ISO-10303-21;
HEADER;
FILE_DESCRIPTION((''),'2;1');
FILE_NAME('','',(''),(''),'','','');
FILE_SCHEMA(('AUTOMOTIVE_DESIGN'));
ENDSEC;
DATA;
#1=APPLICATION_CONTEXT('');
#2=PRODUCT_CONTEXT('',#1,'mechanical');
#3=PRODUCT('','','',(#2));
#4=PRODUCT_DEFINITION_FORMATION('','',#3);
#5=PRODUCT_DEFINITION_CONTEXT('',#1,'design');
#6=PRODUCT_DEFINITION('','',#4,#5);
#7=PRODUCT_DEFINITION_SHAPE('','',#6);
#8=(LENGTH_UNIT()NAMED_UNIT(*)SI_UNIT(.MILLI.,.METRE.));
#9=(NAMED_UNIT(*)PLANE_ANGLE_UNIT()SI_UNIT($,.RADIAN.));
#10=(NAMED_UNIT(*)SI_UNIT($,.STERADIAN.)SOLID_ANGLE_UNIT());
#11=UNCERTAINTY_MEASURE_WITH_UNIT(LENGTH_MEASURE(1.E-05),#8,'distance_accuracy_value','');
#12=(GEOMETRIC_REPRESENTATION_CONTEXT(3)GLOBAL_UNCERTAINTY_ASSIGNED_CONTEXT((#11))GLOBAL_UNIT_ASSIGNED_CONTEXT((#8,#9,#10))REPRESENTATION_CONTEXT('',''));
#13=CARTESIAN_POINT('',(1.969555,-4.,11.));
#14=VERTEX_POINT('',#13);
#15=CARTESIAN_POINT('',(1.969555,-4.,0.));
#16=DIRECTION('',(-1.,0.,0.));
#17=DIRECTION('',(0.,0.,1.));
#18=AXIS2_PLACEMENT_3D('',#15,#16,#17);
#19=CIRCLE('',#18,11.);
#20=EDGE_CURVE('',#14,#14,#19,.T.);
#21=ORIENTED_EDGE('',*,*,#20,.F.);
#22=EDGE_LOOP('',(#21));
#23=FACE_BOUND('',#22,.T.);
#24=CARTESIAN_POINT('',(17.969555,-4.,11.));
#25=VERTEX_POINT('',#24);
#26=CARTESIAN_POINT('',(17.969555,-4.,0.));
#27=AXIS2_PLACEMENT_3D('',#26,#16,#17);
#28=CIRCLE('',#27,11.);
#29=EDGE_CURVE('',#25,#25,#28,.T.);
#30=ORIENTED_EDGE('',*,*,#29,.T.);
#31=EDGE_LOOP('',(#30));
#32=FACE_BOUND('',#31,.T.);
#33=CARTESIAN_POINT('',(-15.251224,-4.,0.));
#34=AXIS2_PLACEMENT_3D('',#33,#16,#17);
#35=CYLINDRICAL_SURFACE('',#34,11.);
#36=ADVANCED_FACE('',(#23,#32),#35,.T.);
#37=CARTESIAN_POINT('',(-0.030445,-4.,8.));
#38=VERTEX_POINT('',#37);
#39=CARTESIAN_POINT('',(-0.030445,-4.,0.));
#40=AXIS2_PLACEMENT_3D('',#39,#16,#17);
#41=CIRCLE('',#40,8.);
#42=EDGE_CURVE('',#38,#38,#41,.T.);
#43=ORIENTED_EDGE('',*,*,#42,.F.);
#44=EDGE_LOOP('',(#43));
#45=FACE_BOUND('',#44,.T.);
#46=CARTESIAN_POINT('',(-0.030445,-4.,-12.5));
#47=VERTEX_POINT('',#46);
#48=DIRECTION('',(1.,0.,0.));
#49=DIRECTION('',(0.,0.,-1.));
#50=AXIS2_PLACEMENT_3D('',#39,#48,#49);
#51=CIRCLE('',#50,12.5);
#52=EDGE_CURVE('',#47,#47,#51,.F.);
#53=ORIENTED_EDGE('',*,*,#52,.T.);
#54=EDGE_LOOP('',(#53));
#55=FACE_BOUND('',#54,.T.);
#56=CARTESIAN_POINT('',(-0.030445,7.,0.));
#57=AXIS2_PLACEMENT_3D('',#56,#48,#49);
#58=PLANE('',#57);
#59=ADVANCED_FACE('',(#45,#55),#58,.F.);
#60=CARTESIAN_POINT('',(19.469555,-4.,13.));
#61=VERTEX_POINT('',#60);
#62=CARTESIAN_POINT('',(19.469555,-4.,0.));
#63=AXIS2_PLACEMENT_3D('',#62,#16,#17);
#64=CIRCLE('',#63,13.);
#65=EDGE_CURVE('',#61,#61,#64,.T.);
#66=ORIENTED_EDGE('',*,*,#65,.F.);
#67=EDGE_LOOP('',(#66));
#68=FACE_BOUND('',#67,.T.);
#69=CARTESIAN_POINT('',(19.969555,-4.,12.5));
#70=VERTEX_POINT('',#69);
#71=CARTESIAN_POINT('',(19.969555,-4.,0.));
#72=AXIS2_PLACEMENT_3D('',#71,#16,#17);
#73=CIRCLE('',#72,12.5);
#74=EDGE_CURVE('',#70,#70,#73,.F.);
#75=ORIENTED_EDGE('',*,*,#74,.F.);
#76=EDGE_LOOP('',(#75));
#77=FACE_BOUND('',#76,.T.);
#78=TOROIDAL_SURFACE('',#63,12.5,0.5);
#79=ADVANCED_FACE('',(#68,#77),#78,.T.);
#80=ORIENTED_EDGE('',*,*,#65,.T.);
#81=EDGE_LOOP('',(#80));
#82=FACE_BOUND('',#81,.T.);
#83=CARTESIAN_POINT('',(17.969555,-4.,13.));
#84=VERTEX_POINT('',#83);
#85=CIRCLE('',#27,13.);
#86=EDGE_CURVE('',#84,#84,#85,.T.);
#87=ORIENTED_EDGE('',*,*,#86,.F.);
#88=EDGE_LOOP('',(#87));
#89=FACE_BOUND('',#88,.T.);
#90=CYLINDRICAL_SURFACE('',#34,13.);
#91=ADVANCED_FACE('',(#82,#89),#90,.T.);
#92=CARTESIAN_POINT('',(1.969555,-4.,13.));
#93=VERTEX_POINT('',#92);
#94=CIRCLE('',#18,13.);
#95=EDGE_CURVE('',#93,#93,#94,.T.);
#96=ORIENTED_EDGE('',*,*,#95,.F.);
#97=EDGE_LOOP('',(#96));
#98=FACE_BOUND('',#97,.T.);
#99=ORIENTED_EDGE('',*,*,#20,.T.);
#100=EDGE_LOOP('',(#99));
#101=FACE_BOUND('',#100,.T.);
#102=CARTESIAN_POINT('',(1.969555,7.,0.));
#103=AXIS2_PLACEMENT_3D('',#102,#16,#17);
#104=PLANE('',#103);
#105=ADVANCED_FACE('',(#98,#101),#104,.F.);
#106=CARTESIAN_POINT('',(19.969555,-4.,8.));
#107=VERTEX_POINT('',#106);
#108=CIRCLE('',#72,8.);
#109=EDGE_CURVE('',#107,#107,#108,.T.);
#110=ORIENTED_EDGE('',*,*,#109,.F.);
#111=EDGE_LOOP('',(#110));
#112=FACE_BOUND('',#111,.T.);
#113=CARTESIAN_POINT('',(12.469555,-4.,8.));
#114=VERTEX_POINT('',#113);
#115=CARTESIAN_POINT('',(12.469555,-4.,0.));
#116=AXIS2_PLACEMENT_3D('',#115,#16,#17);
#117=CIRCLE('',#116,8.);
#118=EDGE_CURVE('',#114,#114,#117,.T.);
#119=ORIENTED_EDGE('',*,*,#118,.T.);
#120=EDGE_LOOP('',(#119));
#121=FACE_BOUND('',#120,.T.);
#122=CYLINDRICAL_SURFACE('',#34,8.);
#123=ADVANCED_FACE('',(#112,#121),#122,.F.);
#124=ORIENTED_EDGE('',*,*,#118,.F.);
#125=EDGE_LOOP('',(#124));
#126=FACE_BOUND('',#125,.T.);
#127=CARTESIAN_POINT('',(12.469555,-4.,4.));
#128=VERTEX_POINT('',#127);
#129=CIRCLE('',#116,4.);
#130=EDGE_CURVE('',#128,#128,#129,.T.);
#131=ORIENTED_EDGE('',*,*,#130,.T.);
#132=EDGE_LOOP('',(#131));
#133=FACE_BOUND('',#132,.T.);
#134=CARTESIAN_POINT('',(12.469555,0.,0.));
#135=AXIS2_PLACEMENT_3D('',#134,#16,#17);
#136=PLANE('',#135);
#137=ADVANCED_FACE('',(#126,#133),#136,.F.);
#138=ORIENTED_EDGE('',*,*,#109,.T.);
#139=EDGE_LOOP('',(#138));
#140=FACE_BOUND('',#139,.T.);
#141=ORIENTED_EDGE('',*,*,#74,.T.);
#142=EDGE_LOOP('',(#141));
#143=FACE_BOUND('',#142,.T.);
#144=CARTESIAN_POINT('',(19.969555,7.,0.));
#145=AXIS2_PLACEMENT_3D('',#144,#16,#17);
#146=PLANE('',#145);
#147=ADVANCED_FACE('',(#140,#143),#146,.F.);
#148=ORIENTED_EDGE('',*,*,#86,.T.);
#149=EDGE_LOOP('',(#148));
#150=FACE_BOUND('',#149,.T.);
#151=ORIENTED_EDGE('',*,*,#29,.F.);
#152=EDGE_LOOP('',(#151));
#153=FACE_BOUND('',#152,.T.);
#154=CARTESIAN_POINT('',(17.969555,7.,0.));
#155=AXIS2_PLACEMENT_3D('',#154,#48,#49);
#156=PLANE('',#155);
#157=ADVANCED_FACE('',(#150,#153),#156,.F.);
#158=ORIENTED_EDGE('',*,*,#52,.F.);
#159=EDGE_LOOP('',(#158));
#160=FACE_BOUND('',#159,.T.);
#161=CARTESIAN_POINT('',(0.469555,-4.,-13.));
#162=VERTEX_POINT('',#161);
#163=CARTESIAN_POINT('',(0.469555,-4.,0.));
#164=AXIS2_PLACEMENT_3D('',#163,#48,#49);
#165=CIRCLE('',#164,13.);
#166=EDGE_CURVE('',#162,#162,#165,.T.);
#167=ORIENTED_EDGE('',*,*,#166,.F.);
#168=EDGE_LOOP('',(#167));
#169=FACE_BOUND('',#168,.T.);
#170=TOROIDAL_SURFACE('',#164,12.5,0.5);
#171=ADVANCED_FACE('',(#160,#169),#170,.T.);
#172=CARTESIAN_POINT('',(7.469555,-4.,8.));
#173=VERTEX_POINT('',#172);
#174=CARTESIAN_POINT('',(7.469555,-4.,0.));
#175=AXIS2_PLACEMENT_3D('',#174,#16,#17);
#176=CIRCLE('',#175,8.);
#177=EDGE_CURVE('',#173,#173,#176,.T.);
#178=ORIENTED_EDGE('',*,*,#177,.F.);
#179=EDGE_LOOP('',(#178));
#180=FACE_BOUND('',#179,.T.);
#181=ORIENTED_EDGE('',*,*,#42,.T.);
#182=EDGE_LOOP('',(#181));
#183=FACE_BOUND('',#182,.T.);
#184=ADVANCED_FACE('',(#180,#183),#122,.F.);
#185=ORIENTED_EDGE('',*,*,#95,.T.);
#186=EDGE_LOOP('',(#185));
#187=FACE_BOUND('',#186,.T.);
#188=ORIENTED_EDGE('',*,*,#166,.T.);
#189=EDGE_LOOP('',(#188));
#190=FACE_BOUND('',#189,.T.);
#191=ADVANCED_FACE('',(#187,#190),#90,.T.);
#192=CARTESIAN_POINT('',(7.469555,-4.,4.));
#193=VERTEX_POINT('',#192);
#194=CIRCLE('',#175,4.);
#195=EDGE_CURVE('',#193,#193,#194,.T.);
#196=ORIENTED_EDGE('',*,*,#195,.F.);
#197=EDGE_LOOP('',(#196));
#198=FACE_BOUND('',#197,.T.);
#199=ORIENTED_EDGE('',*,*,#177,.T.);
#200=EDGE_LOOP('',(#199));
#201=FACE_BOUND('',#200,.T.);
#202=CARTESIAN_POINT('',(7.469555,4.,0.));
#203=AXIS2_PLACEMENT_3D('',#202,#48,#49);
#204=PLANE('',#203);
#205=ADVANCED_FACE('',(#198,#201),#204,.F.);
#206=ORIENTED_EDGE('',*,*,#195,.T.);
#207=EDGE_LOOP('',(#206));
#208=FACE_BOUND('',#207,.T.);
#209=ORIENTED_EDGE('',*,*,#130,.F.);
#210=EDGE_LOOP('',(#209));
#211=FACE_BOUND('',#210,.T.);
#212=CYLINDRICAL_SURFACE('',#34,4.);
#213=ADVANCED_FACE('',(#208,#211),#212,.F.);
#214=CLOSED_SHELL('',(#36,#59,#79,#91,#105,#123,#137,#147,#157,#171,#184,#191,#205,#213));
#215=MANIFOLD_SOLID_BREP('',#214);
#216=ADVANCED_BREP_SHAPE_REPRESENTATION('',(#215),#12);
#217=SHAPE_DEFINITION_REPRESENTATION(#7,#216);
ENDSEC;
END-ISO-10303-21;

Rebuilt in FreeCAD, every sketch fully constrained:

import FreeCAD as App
import Part
import Sketcher
Q = App.Units.Quantity


def edges_at(feature, points):
    """Names of the edges that pass closest to the given points."""
    edges = feature.Shape.Edges
    near = lambda p: min(range(len(edges)), key=lambda i: edges[i].distToShape(Part.Vertex(*p))[0])
    return sorted({f"Edge{near(p) + 1}" for p in points})

doc = App.newDocument("Part")
body = doc.addObject("PartDesign::Body", "Body")

# Sketch on XY plane
sketch1 = body.newObject("Sketcher::SketchObject", "Sketch")
sketch1.AttachmentSupport = (doc.getObject("XY_Plane"), [""])
sketch1.MapMode = "FlatFace"
sketch1.addGeometry([
    Part.LineSegment(App.Vector(20, 4, 0), App.Vector(20, 9, 0)),  # 0
    Part.LineSegment(App.Vector(20, 9, 0), App.Vector(18, 9, 0)),  # 1
    Part.LineSegment(App.Vector(18, 9, 0), App.Vector(18, 7, 0)),  # 2
    Part.LineSegment(App.Vector(18, 7, 0), App.Vector(2, 7, 0)),  # 3
    Part.LineSegment(App.Vector(2, 7, 0), App.Vector(2, 9, 0)),  # 4
    Part.LineSegment(App.Vector(2, 9, 0), App.Vector(0, 9, 0)),  # 5
    Part.LineSegment(App.Vector(0, 9, 0), App.Vector(0, 4, 0)),  # 6
    Part.LineSegment(App.Vector(0, 4, 0), App.Vector(7.5, 4, 0)),  # 7
    Part.LineSegment(App.Vector(7.5, 4, 0), App.Vector(7.5, 0, 0)),  # 8
    Part.LineSegment(App.Vector(7.5, 0, 0), App.Vector(12.5, 0, 0)),  # 9
    Part.LineSegment(App.Vector(12.5, 0, 0), App.Vector(12.5, 4, 0)),  # 10
    Part.LineSegment(App.Vector(12.5, 4, 0), App.Vector(20, 4, 0)),  # 11
], False)
sketch1.addGeometry(Part.LineSegment(App.Vector(0, -4, 0), App.Vector(20, -4, 0)), True)  # axis
sketch1.addConstraint([
    Sketcher.Constraint("Coincident", 0, 2, 1, 1),
    Sketcher.Constraint("Coincident", 1, 2, 2, 1),
    Sketcher.Constraint("Coincident", 2, 2, 3, 1),
    Sketcher.Constraint("Coincident", 3, 2, 4, 1),
    Sketcher.Constraint("Coincident", 4, 2, 5, 1),
    Sketcher.Constraint("Coincident", 5, 2, 6, 1),
    Sketcher.Constraint("Coincident", 6, 2, 7, 1),
    Sketcher.Constraint("Coincident", 7, 2, 8, 1),
    Sketcher.Constraint("Coincident", 8, 2, 9, 1),
    Sketcher.Constraint("Coincident", 9, 2, 10, 1),
    Sketcher.Constraint("Coincident", 10, 2, 11, 1),
    Sketcher.Constraint("Coincident", 11, 2, 0, 1),
    Sketcher.Constraint("Vertical", 0),
    Sketcher.Constraint("Horizontal", 1),
    Sketcher.Constraint("Vertical", 2),
    Sketcher.Constraint("Horizontal", 3),
    Sketcher.Constraint("Vertical", 4),
    Sketcher.Constraint("Horizontal", 5),
    Sketcher.Constraint("Vertical", 6),
    Sketcher.Constraint("Horizontal", 7),
    Sketcher.Constraint("Vertical", 8),
    Sketcher.Constraint("Horizontal", 9),
    Sketcher.Constraint("Vertical", 10),
    Sketcher.Constraint("Horizontal", 11),
    Sketcher.Constraint("Horizontal", 12),
    Sketcher.Constraint("Symmetric", 6, 2, 12, 1, -1),
    Sketcher.Constraint("Symmetric", 11, 2, 12, 2, -1),
    Sketcher.Constraint("PointOnObject", 8, 2, -1),
    Sketcher.Constraint("Horizontal", 1, 2, 4, 2),
    Sketcher.Constraint("Equal", 1, 5),
    Sketcher.Constraint("Equal", 7, 11),
    Sketcher.Constraint("Equal", 9, 0),
    Sketcher.Constraint("Equal", 5, 2),
    Sketcher.Constraint("DistanceX", 1, 2, 1, 1, Q("2 mm")),
    Sketcher.Constraint("DistanceX", 3, 2, 3, 1, Q("16 mm")),
    Sketcher.Constraint("DistanceX", 9, 1, 9, 2, Q("5 mm")),
    Sketcher.Constraint("DistanceY", 8, 2, 8, 1, Q("4 mm")),
    Sketcher.Constraint("DistanceX", -1, 1, 0, 2, Q("19.969555 mm")),
])
revolution = body.newObject("PartDesign::Revolution", "Revolution")
revolution.Profile = sketch1
revolution.ReferenceAxis = (sketch1, ["Axis0"])
revolution.Angle = 360
doc.recompute()

fillet = body.newObject("PartDesign::Fillet", "Fillet")
fillet.Base = (revolution, edges_at(revolution, [(19.97, -4, -13), (-0.03, -4, -13)]))
fillet.Radius = 0.5

doc.recompute()
